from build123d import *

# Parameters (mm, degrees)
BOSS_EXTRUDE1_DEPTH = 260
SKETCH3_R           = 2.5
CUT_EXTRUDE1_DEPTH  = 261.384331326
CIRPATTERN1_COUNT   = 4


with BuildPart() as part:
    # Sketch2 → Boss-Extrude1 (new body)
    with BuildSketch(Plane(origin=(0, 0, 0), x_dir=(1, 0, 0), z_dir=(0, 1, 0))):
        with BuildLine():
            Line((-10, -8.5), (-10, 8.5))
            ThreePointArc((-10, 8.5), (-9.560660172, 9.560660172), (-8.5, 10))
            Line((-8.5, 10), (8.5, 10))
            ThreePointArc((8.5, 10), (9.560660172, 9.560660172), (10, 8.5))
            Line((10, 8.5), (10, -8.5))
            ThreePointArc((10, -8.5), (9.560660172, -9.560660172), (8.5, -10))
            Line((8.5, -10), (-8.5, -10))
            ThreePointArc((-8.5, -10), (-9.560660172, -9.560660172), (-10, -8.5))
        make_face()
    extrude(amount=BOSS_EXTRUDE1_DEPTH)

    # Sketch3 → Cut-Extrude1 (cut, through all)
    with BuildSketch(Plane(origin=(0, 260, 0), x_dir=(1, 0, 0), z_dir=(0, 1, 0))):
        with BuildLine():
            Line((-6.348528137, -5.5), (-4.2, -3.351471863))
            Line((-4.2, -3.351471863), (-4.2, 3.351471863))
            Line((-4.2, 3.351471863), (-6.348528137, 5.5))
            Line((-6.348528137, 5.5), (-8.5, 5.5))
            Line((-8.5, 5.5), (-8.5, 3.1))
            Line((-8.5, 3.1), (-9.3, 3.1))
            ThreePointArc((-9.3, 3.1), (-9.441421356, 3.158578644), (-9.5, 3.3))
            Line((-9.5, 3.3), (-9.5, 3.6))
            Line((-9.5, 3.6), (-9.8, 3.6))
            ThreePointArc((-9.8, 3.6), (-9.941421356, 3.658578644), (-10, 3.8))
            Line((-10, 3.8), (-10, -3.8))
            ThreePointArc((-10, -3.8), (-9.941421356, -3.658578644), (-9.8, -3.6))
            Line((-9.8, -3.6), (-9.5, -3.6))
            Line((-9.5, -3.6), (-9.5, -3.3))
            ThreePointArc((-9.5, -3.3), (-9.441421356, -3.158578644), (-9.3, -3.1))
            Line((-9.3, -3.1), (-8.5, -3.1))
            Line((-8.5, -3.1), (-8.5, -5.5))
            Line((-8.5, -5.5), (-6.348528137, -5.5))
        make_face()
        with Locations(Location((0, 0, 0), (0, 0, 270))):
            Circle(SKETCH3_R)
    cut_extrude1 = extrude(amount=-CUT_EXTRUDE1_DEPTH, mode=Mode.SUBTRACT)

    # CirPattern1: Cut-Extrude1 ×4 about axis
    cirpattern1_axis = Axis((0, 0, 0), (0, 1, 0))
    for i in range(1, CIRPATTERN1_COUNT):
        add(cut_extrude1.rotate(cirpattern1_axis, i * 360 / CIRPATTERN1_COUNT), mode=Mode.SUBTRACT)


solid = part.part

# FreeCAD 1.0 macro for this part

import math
import FreeCAD as App
import Part
import Sketcher

V = App.Vector

doc = App.newDocument("Part")
body = doc.addObject("PartDesign::Body", "Body")

sketch1 = body.newObject("Sketcher::SketchObject", "Sketch")
sketch1.AttachmentSupport = (doc.getObject("XZ_Plane"), [""])
sketch1.MapMode = "FlatFace"
sketch1.addGeometry([
    Part.LineSegment(V(-10, -8.5, 0), V(-10, 8.5, 0)),
    Part.ArcOfCircle(Part.Circle(V(-8.5, 8.5, 0), V(0, 0, 1), 1.5), math.radians(90), math.radians(180)),
    Part.LineSegment(V(-8.5, 10, 0), V(8.5, 10, 0)),
    Part.ArcOfCircle(Part.Circle(V(8.5, 8.5, 0), V(0, 0, 1), 1.5), math.radians(0), math.radians(90)),
    Part.LineSegment(V(10, 8.5, 0), V(10, -8.5, 0)),
    Part.ArcOfCircle(Part.Circle(V(8.5, -8.5, 0), V(0, 0, 1), 1.5), math.radians(-90), math.radians(0)),
    Part.LineSegment(V(8.5, -10, 0), V(-8.5, -10, 0)),
    Part.ArcOfCircle(Part.Circle(V(-8.5, -8.5, 0), V(0, 0, 1), 1.5), math.radians(180), math.radians(270)),
], False)
sketch1.addConstraint([
    Sketcher.Constraint("Tangent", 0, 2, 1, 2),
    Sketcher.Constraint("Tangent", 1, 1, 2, 1),
    Sketcher.Constraint("Tangent", 2, 2, 3, 2),
    Sketcher.Constraint("Tangent", 3, 1, 4, 1),
    Sketcher.Constraint("Tangent", 4, 2, 5, 2),
    Sketcher.Constraint("Tangent", 5, 1, 6, 1),
    Sketcher.Constraint("Tangent", 6, 2, 7, 2),
    Sketcher.Constraint("Tangent", 7, 1, 0, 1),
    Sketcher.Constraint("Vertical", 0),
    Sketcher.Constraint("Horizontal", 2),
    Sketcher.Constraint("Vertical", 4),
    Sketcher.Constraint("Horizontal", 6),
    Sketcher.Constraint("Equal", 1, 3),
    Sketcher.Constraint("Equal", 3, 5),
    Sketcher.Constraint("Equal", 5, 7),
    Sketcher.Constraint("Symmetric", 1, 3, 5, 3, -1, 1),
    Sketcher.Constraint("Equal", 6, 0),
    Sketcher.Constraint("Radius", 1, 1.5),
    Sketcher.Constraint("DistanceX", 2, 1, 2, 2, 17.0),
])
pad1 = body.newObject("PartDesign::Pad", "Pad")
pad1.Profile = sketch1
pad1.Length = 260
pad1.Reversed = True

sketch2 = body.newObject("Sketcher::SketchObject", "Sketch001")
sketch2.AttachmentSupport = (doc.getObject("XZ_Plane"), [""])
sketch2.MapMode = "FlatFace"
sketch2.AttachmentOffset = App.Placement(V(0, 0, -260), App.Rotation())
sketch2.addGeometry([
    Part.LineSegment(V(-6.35, 5.5, 0), V(-4.2, 3.35, 0)),
    Part.LineSegment(V(-4.2, 3.35, 0), V(-4.2, -3.35, 0)),
    Part.LineSegment(V(-4.2, -3.35, 0), V(-6.35, -5.5, 0)),
    Part.LineSegment(V(-6.35, -5.5, 0), V(-8.5, -5.5, 0)),
    Part.LineSegment(V(-8.5, -5.5, 0), V(-8.5, -3.1, 0)),
    Part.LineSegment(V(-8.5, -3.1, 0), V(-9.3, -3.1, 0)),
    Part.ArcOfCircle(Part.Circle(V(-9.3, -3.3, 0), V(0, 0, 1), 0.2), math.radians(90), math.radians(180)),
    Part.LineSegment(V(-9.5, -3.3, 0), V(-9.5, -3.6, 0)),
    Part.LineSegment(V(-9.5, -3.6, 0), V(-9.8, -3.6, 0)),
    Part.ArcOfCircle(Part.Circle(V(-9.8, -3.8, 0), V(0, 0, 1), 0.2), math.radians(90), math.radians(180)),
    Part.LineSegment(V(-10, -3.8, 0), V(-10, 3.8, 0)),
    Part.ArcOfCircle(Part.Circle(V(-9.8, 3.8, 0), V(0, 0, 1), 0.2), math.radians(-180), math.radians(-90)),
    Part.LineSegment(V(-9.8, 3.6, 0), V(-9.5, 3.6, 0)),
    Part.LineSegment(V(-9.5, 3.6, 0), V(-9.5, 3.3, 0)),
    Part.ArcOfCircle(Part.Circle(V(-9.3, 3.3, 0), V(0, 0, 1), 0.2), math.radians(-180), math.radians(-90)),
    Part.LineSegment(V(-9.3, 3.1, 0), V(-8.5, 3.1, 0)),
    Part.LineSegment(V(-8.5, 3.1, 0), V(-8.5, 5.5, 0)),
    Part.LineSegment(V(-8.5, 5.5, 0), V(-6.35, 5.5, 0)),
    Part.Circle(V(0, 0, 0), V(0, 0, 1), 2.5),
], False)
sketch2.addConstraint([
    Sketcher.Constraint("Coincident", 0, 2, 1, 1),
    Sketcher.Constraint("Coincident", 1, 2, 2, 1),
    Sketcher.Constraint("Coincident", 2, 2, 3, 1),
    Sketcher.Constraint("Coincident", 3, 2, 4, 1),
    Sketcher.Constraint("Coincident", 4, 2, 5, 1),
    Sketcher.Constraint("Tangent", 5, 2, 6, 1),
    Sketcher.Constraint("Tangent", 6, 2, 7, 1),
    Sketcher.Constraint("Coincident", 7, 2, 8, 1),
    Sketcher.Constraint("Tangent", 8, 2, 9, 1),
    Sketcher.Constraint("Tangent", 9, 2, 10, 1),
    Sketcher.Constraint("Tangent", 10, 2, 11, 1),
    Sketcher.Constraint("Tangent", 11, 2, 12, 1),
    Sketcher.Constraint("Coincident", 12, 2, 13, 1),
    Sketcher.Constraint("Tangent", 13, 2, 14, 1),
    Sketcher.Constraint("Tangent", 14, 2, 15, 1),
    Sketcher.Constraint("Coincident", 15, 2, 16, 1),
    Sketcher.Constraint("Coincident", 16, 2, 17, 1),
    Sketcher.Constraint("Coincident", 17, 2, 0, 1),
    Sketcher.Constraint("Vertical", 1),
    Sketcher.Constraint("Horizontal", 3),
    Sketcher.Constraint("Vertical", 4),
    Sketcher.Constraint("Horizontal", 5),
    Sketcher.Constraint("Vertical", 7),
    Sketcher.Constraint("Horizontal", 8),
    Sketcher.Constraint("Vertical", 10),
    Sketcher.Constraint("Horizontal", 12),
    Sketcher.Constraint("Vertical", 13),
    Sketcher.Constraint("Horizontal", 15),
    Sketcher.Constraint("Vertical", 16),
    Sketcher.Constraint("Horizontal", 17),
    Sketcher.Constraint("Coincident", 18, 3, -1, 1),
    Sketcher.Constraint("Equal", 6, 9),
    Sketcher.Constraint("Equal", 9, 11),
    Sketcher.Constraint("Equal", 11, 14),
    Sketcher.Constraint("Symmetric", 6, 3, 14, 3, -1),
    Sketcher.Constraint("Symmetric", 3, 2, 16, 2, -1),
    Sketcher.Constraint("Perpendicular", 0, 2),
    Sketcher.Constraint("Vertical", 2, 2, 17, 2),
    Sketcher.Constraint("Equal", 12, 7),
    Sketcher.Constraint("Equal", 7, 13),
    Sketcher.Constraint("Equal", 0, 2),
    Sketcher.Constraint("Diameter", 18, 5.0),
    Sketcher.Constraint("Radius", 6, 0.2),
    Sketcher.Constraint("DistanceX", 5, 2, 5, 1, 0.8),
    Sketcher.Constraint("DistanceX", 8, 2, 8, 1, 0.3),
    Sketcher.Constraint("DistanceY", 4, 1, 4, 2, 2.4),
    Sketcher.Constraint("DistanceY", 10, 1, 10, 2, 7.6),
    Sketcher.Constraint("DistanceX", 9, 2, -1, 1, 10.0),
    Sketcher.Constraint("DistanceX", 0, 2, -1, 1, 4.2),
    Sketcher.Constraint("DistanceX", 3, 2, 3, 1, 2.151472),
])
pocket1 = body.newObject("PartDesign::Pocket", "Pocket")
pocket1.Profile = sketch2
pocket1.Type = "ThroughAll"
pocket1.Reversed = True
doc.recompute()

polarpattern = body.newObject("PartDesign::PolarPattern", "PolarPattern")
polarpattern.Originals = [pocket1]
polarpattern.Axis = (doc.getObject("Y_Axis"), [""])
polarpattern.Angle = 360
polarpattern.Occurrences = 4
body.Tip = polarpattern

doc.recompute()
